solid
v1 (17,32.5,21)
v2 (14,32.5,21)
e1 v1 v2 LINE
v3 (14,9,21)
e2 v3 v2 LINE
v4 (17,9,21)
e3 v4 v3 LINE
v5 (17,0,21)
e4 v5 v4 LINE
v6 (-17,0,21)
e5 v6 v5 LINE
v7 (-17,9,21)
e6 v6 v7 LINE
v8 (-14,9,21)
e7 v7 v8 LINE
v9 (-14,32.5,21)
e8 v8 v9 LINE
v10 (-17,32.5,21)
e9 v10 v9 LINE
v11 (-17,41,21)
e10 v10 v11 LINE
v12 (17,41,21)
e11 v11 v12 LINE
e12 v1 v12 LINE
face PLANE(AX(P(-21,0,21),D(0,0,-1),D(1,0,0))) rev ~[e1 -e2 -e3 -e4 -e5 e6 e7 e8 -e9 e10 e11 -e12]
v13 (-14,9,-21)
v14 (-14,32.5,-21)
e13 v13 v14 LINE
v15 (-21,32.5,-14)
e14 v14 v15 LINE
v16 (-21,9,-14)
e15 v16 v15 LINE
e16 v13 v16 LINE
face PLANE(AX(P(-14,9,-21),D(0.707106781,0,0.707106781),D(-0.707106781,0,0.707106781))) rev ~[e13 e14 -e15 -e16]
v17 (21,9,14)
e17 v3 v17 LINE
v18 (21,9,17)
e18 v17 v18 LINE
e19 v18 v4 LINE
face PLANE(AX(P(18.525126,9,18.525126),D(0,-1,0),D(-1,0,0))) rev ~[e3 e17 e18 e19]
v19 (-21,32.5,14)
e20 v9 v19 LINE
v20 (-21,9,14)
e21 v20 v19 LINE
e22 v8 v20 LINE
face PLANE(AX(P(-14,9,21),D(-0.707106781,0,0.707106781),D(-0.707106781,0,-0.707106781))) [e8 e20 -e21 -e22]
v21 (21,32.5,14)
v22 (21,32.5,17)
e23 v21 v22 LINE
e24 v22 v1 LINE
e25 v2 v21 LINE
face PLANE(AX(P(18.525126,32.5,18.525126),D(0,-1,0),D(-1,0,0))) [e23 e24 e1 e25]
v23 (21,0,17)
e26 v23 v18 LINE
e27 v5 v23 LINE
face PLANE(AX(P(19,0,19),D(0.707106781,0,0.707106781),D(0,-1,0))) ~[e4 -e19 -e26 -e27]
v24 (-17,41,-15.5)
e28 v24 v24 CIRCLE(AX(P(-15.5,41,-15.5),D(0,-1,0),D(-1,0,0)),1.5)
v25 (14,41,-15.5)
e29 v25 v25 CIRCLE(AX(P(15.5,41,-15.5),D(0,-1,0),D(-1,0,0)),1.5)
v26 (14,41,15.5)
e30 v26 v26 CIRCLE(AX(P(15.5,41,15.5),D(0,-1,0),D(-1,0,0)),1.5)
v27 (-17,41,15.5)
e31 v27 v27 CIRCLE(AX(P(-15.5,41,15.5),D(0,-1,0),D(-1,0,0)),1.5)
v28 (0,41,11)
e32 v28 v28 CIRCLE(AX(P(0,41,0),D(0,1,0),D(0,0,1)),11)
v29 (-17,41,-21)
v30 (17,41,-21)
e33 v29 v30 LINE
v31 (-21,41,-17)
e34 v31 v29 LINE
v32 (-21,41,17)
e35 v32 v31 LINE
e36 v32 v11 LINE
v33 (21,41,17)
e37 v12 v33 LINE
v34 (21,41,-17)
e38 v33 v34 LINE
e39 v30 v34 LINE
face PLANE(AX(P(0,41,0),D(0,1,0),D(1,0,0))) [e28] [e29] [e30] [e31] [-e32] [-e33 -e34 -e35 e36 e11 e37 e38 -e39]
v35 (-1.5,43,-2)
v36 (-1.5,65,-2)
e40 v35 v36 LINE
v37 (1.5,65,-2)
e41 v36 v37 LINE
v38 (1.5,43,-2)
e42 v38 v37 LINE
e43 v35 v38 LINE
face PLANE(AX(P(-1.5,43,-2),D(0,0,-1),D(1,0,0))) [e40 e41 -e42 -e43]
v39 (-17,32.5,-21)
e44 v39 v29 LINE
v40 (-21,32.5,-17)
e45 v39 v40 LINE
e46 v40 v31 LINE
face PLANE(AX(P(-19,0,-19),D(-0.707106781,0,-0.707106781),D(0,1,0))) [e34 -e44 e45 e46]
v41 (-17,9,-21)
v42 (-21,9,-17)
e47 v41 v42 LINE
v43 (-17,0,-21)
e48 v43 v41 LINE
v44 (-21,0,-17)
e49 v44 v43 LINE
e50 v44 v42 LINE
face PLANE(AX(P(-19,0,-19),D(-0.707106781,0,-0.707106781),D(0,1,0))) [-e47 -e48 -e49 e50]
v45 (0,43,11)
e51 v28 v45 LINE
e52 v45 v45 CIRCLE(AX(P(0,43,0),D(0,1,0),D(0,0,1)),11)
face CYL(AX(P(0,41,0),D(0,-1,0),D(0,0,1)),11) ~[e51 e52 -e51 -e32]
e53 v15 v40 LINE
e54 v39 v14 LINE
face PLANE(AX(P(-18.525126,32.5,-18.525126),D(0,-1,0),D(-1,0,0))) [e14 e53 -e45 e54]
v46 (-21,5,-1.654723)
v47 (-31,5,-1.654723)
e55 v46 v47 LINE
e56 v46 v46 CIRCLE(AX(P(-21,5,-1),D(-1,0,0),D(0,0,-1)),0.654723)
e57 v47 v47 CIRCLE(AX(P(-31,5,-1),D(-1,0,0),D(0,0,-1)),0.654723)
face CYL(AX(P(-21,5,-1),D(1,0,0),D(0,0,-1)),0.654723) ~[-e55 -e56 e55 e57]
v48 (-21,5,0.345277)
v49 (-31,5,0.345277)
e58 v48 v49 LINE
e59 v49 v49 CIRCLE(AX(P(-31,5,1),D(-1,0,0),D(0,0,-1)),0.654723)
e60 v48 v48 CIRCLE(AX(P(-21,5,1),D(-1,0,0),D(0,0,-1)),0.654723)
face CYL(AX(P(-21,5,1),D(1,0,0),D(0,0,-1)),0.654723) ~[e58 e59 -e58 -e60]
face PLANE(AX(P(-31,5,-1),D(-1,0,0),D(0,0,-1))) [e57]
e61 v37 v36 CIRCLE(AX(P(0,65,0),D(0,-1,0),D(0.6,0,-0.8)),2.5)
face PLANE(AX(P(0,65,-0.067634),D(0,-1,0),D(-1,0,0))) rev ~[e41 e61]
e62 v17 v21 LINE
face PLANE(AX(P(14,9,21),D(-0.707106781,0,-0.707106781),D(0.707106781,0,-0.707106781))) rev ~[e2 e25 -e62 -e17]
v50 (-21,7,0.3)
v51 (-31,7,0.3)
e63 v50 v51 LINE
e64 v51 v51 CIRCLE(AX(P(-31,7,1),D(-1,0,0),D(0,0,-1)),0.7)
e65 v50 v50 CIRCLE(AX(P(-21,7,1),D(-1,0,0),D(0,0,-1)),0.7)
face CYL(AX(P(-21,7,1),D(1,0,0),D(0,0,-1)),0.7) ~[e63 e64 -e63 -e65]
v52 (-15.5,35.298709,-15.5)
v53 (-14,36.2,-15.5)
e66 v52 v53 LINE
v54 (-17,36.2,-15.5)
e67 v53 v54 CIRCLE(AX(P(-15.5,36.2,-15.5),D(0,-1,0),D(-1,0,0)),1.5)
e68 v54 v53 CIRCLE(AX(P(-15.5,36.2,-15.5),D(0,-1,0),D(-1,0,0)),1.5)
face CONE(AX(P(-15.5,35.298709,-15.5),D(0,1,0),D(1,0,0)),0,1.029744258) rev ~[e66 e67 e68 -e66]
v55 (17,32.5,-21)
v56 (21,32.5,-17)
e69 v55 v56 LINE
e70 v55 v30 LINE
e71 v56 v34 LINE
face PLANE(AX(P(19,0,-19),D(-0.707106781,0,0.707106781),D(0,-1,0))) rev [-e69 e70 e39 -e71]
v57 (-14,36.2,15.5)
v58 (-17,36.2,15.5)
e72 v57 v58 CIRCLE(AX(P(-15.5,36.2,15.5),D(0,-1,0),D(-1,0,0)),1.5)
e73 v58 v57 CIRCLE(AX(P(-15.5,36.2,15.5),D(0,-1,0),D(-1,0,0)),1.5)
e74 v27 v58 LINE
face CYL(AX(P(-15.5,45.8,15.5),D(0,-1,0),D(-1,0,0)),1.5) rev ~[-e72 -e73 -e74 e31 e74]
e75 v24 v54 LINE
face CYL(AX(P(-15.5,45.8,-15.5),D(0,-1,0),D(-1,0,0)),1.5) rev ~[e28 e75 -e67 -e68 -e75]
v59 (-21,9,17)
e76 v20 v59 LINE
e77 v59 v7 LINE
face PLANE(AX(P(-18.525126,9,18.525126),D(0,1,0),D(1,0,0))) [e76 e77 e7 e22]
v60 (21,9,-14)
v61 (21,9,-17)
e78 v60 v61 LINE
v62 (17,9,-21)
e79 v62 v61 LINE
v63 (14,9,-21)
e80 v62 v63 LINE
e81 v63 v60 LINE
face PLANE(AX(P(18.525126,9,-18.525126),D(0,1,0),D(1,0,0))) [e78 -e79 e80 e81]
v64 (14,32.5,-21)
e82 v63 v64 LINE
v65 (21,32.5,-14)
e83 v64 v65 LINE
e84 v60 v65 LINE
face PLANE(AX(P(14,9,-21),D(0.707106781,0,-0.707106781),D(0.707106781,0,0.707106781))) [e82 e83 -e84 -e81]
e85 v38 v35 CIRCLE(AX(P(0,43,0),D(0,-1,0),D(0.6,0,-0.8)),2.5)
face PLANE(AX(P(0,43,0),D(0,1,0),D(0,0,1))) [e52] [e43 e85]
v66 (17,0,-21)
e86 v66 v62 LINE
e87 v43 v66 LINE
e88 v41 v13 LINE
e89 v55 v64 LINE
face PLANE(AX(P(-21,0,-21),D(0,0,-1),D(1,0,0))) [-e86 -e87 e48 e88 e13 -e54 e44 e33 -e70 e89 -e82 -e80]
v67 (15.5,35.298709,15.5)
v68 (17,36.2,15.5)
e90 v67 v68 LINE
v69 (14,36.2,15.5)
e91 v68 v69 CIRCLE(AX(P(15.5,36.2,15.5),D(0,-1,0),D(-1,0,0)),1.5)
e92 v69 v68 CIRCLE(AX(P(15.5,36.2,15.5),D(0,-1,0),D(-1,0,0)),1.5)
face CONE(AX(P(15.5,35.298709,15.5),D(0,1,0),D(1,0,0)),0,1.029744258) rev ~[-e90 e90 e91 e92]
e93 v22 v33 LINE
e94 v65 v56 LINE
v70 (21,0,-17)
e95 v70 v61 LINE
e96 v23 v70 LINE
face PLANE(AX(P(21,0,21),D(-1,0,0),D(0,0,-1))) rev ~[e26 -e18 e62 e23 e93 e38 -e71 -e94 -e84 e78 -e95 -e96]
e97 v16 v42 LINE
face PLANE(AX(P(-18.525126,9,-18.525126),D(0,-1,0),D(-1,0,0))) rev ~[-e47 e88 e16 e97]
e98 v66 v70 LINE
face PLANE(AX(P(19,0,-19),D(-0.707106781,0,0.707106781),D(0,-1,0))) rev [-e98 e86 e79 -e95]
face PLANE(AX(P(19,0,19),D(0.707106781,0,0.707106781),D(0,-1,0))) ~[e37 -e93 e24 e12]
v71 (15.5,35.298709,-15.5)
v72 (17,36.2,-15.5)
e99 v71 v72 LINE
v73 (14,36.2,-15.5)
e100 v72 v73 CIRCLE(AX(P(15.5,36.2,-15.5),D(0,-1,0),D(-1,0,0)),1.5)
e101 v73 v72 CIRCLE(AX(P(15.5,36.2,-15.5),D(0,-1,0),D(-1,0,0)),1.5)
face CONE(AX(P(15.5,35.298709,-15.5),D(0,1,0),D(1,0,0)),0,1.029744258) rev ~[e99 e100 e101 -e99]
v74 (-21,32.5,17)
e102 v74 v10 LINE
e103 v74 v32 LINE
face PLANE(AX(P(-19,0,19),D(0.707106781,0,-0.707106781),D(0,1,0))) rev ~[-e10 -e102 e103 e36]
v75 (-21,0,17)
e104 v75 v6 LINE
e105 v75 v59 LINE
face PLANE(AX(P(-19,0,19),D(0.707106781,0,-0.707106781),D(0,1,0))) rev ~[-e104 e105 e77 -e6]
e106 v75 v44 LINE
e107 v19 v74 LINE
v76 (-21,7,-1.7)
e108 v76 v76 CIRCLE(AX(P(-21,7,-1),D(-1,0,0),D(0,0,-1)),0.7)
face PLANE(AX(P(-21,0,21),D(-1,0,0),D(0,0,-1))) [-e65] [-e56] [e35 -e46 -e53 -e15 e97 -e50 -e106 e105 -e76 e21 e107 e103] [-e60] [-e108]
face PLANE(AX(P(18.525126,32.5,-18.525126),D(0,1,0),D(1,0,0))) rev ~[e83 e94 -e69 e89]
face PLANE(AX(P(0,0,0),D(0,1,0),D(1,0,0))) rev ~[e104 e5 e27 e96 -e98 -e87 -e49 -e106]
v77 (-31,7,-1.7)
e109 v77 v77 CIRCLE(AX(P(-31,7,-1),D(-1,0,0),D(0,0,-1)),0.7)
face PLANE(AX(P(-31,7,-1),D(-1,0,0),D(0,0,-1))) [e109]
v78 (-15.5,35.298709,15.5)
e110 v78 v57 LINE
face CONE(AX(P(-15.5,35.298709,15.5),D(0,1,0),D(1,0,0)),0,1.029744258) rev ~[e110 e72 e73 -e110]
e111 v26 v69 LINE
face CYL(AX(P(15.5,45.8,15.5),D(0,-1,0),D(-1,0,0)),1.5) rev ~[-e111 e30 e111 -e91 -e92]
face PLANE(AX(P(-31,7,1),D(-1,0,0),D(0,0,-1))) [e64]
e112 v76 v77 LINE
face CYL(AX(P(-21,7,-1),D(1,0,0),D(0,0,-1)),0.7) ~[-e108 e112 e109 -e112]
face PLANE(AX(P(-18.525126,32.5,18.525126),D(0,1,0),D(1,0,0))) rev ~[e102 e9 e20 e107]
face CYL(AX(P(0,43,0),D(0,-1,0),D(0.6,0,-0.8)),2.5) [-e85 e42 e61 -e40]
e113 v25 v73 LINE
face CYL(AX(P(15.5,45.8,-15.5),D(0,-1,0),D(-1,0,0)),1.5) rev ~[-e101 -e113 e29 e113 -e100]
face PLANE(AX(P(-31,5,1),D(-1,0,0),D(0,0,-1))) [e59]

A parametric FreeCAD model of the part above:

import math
import FreeCAD as App
import Part
import Sketcher

V = App.Vector
Q = App.Units.Quantity


def edges_at(feature, points):
    """Names of the edges that pass closest to the given points."""
    edges = feature.Shape.Edges
    near = lambda p: min(range(len(edges)), key=lambda i: edges[i].distToShape(Part.Vertex(*p))[0])
    return sorted({f"Edge{near(p) + 1}" for p in points})

doc = App.newDocument("Part")
body = doc.addObject("PartDesign::Body", "Body")

# Sketch on XZ plane
sketch1 = body.newObject("Sketcher::SketchObject", "Sketch")
sketch1.AttachmentSupport = (doc.getObject("XZ_Plane"), [""])
sketch1.MapMode = "FlatFace"
sketch1.addGeometry(Part.LineSegment(V(-21, -21, 0), V(-21, 21, 0)), False)
sketch1.addGeometry(Part.LineSegment(V(-21, 21, 0), V(21, 21, 0)), False)
sketch1.addGeometry(Part.LineSegment(V(21, 21, 0), V(21, -21, 0)), False)
sketch1.addGeometry(Part.LineSegment(V(21, -21, 0), V(-21, -21, 0)), False)
sketch1.addConstraint(Sketcher.Constraint("Coincident", 0, 2, 1, 1))
sketch1.addConstraint(Sketcher.Constraint("Coincident", 1, 2, 2, 1))
sketch1.addConstraint(Sketcher.Constraint("Coincident", 2, 2, 3, 1))
sketch1.addConstraint(Sketcher.Constraint("Coincident", 3, 2, 0, 1))
sketch1.addConstraint(Sketcher.Constraint("Vertical", 0))
sketch1.addConstraint(Sketcher.Constraint("Horizontal", 1))
sketch1.addConstraint(Sketcher.Constraint("Vertical", 2))
sketch1.addConstraint(Sketcher.Constraint("Horizontal", 3))
sketch1.addConstraint(Sketcher.Constraint("Symmetric", 0, 2, 2, 2, -1, 1))
sketch1.addConstraint(Sketcher.Constraint("Equal", 3, 0))
sketch1.addConstraint(Sketcher.Constraint("DistanceX", 1, 1, 1, 2, Q("42 mm")))
pad1 = body.newObject("PartDesign::Pad", "Pad")
pad1.Profile = sketch1
pad1.Length = 41
pad1.Reversed = True

# Sketch on XZ plane
sketch2 = body.newObject("Sketcher::SketchObject", "Sketch001")
sketch2.AttachmentSupport = (doc.getObject("XZ_Plane"), [""])
sketch2.MapMode = "FlatFace"
sketch2.AttachmentOffset = App.Placement(V(0, 0, -41), App.Rotation())
sketch2.addGeometry(Part.Circle(V(0, 0, 0), V(0, 0, 1), 11), False)
sketch2.addConstraint(Sketcher.Constraint("Coincident", 0, 3, -1, 1))
sketch2.addConstraint(Sketcher.Constraint("Diameter", 0, Q("22 mm")))
pad2 = body.newObject("PartDesign::Pad", "Pad001")
pad2.Profile = sketch2
pad2.Length = 2
pad2.Reversed = True

# Sketch on XZ plane
sketch3 = body.newObject("Sketcher::SketchObject", "Sketch002")
sketch3.AttachmentSupport = (doc.getObject("XZ_Plane"), [""])
sketch3.MapMode = "FlatFace"
sketch3.AttachmentOffset = App.Placement(V(0, 0, -43), App.Rotation())
sketch3.addGeometry(Part.LineSegment(V(1.5, -2, 0), V(-1.5, -2, 0)), False)
sketch3.addGeometry(Part.ArcOfCircle(Part.Circle(V(0, 0, 0), V(0, 0, 1), 2.5), math.radians(-53), math.radians(233)), False)
sketch3.addConstraint(Sketcher.Constraint("Coincident", 0, 1, 1, 1))
sketch3.addConstraint(Sketcher.Constraint("Coincident", 1, 2, 0, 2))
sketch3.addConstraint(Sketcher.Constraint("Horizontal", 0))
sketch3.addConstraint(Sketcher.Constraint("Coincident", 1, 3, -1, 1))
sketch3.addConstraint(Sketcher.Constraint("Radius", 1, Q("2.5 mm")))
sketch3.addConstraint(Sketcher.Constraint("DistanceX", 0, 2, 0, 1, Q("3 mm")))
pad3 = body.newObject("PartDesign::Pad", "Pad002")
pad3.Profile = sketch3
pad3.Length = 22
pad3.Reversed = True

# Sketch on XZ plane
sketch4 = body.newObject("Sketcher::SketchObject", "Sketch003")
sketch4.AttachmentSupport = (doc.getObject("XZ_Plane"), [""])
sketch4.MapMode = "FlatFace"
sketch4.AttachmentOffset = App.Placement(V(0, 0, -41), App.Rotation())
sketch4.addGeometry(Part.Circle(V(-15.5, -15.5, 0), V(0, 0, 1), 1.5), False)
sketch4.addGeometry(Part.Circle(V(15.5, -15.5, 0), V(0, 0, 1), 1.5), False)
sketch4.addGeometry(Part.Circle(V(15.5, 15.5, 0), V(0, 0, 1), 1.5), False)
sketch4.addGeometry(Part.Circle(V(-15.5, 15.5, 0), V(0, 0, 1), 1.5), False)
sketch4.addConstraint(Sketcher.Constraint("Equal", 0, 1))
sketch4.addConstraint(Sketcher.Constraint("Equal", 1, 2))
sketch4.addConstraint(Sketcher.Constraint("Equal", 2, 3))
sketch4.addConstraint(Sketcher.Constraint("Symmetric", 0, 3, 2, 3, -1, 1))
sketch4.addConstraint(Sketcher.Constraint("Symmetric", 1, 3, 3, 3, -1, 1))
sketch4.addConstraint(Sketcher.Constraint("Symmetric", 0, 3, 1, 3, -2))
sketch4.addConstraint(Sketcher.Constraint("Diameter", 0, Q("3 mm")))
sketch4.addConstraint(Sketcher.Constraint("DistanceX", 0, 3, 1, 3, Q("31 mm")))
sketch4.addConstraint(Sketcher.Constraint("DistanceY", 1, 3, 2, 3, Q("31 mm")))
doc.recompute()
hole = body.newObject("PartDesign::Hole", "Hole")
hole.Profile = sketch4
hole.ThreadType = "None"
hole.Diameter = 3
hole.DepthType = "Dimension"
hole.Depth = 4.8
hole.DrillPoint = "Angled"
hole.DrillPointAngle = 118
hole.Reversed = True
doc.recompute()

chamfer = body.newObject("PartDesign::Chamfer", "Chamfer")
chamfer.Base = (hole, edges_at(hole, [
    (-21, 20.5, -21),
    (21, 20.5, -21),
    (21, 20.5, 21),
    (-21, 20.5, 21),
]))
chamfer.Size = 4

# Sketch on XZ plane
sketch5 = body.newObject("Sketcher::SketchObject", "Sketch004")
sketch5.AttachmentSupport = (doc.getObject("XZ_Plane"), [""])
sketch5.MapMode = "FlatFace"
sketch5.AttachmentOffset = App.Placement(V(0, 0, -9), App.Rotation())
sketch5.addGeometry(Part.LineSegment(V(-21, -14, 0), V(-14, -21, 0)), False)
sketch5.addGeometry(Part.LineSegment(V(-14, -21, 0), V(-21, -21, 0)), False)
sketch5.addGeometry(Part.LineSegment(V(-21, -21, 0), V(-21, -14, 0)), False)
sketch5.addGeometry(Part.LineSegment(V(21, -21, 0), V(14, -21, 0)), False)
sketch5.addGeometry(Part.LineSegment(V(14, -21, 0), V(21, -14, 0)), False)
sketch5.addGeometry(Part.LineSegment(V(21, -14, 0), V(21, -21, 0)), False)
sketch5.addGeometry(Part.LineSegment(V(21, 14, 0), V(14, 21, 0)), False)
sketch5.addGeometry(Part.LineSegment(V(14, 21, 0), V(21, 21, 0)), False)
sketch5.addGeometry(Part.LineSegment(V(21, 21, 0), V(21, 14, 0)), False)
sketch5.addGeometry(Part.LineSegment(V(-21, 21, 0), V(-14, 21, 0)), False)
sketch5.addGeometry(Part.LineSegment(V(-14, 21, 0), V(-21, 14, 0)), False)
sketch5.addGeometry(Part.LineSegment(V(-21, 14, 0), V(-21, 21, 0)), False)
sketch5.addConstraint(Sketcher.Constraint("Coincident", 0, 2, 1, 1))
sketch5.addConstraint(Sketcher.Constraint("Coincident", 1, 2, 2, 1))
sketch5.addConstraint(Sketcher.Constraint("Coincident", 2, 2, 0, 1))
sketch5.addConstraint(Sketcher.Constraint("Coincident", 3, 2, 4, 1))
sketch5.addConstraint(Sketcher.Constraint("Coincident", 4, 2, 5, 1))
sketch5.addConstraint(Sketcher.Constraint("Coincident", 5, 2, 3, 1))
sketch5.addConstraint(Sketcher.Constraint("Coincident", 6, 2, 7, 1))
sketch5.addConstraint(Sketcher.Constraint("Coincident", 7, 2, 8, 1))
sketch5.addConstraint(Sketcher.Constraint("Coincident", 8, 2, 6, 1))
sketch5.addConstraint(Sketcher.Constraint("Coincident", 9, 2, 10, 1))
sketch5.addConstraint(Sketcher.Constraint("Coincident", 10, 2, 11, 1))
sketch5.addConstraint(Sketcher.Constraint("Coincident", 11, 2, 9, 1))
sketch5.addConstraint(Sketcher.Constraint("Horizontal", 1))
sketch5.addConstraint(Sketcher.Constraint("Vertical", 2))
sketch5.addConstraint(Sketcher.Constraint("Horizontal", 3))
sketch5.addConstraint(Sketcher.Constraint("Vertical", 5))
sketch5.addConstraint(Sketcher.Constraint("Horizontal", 7))
sketch5.addConstraint(Sketcher.Constraint("Vertical", 8))
sketch5.addConstraint(Sketcher.Constraint("Horizontal", 9))
sketch5.addConstraint(Sketcher.Constraint("Vertical", 11))
sketch5.addConstraint(Sketcher.Constraint("Symmetric", 0, 2, 6, 2, -1, 1))
sketch5.addConstraint(Sketcher.Constraint("Symmetric", 2, 2, 8, 2, -1, 1))
sketch5.addConstraint(Sketcher.Constraint("Symmetric", 3, 2, 9, 2, -1, 1))
sketch5.addConstraint(Sketcher.Constraint("Symmetric", 4, 2, 10, 2, -1, 1))
sketch5.addConstraint(Sketcher.Constraint("Symmetric", 0, 2, 3, 2, -2))
sketch5.addConstraint(Sketcher.Constraint("Symmetric", 2, 2, 4, 2, -2))
sketch5.addConstraint(Sketcher.Constraint("Perpendicular", 0, 4))
sketch5.addConstraint(Sketcher.Constraint("DistanceX", 1, 2, 1, 1, Q("7 mm")))
sketch5.addConstraint(Sketcher.Constraint("DistanceX", 0, 2, -1, 1, Q("14 mm")))
sketch5.addConstraint(Sketcher.Constraint("DistanceY", 0, 2, -1, 1, Q("21 mm")))
pocket1 = body.newObject("PartDesign::Pocket", "Pocket")
pocket1.Profile = sketch5
pocket1.Length = 23.5

# Sketch on YZ plane
sketch6 = body.newObject("Sketcher::SketchObject", "Sketch005")
sketch6.AttachmentSupport = (doc.getObject("YZ_Plane"), [""])
sketch6.MapMode = "FlatFace"
sketch6.AttachmentOffset = App.Placement(V(0, 0, -21), App.Rotation())
sketch6.addGeometry(Part.Circle(V(7, -1, 0), V(0, 0, 1), 0.7), False)
sketch6.addGeometry(Part.Circle(V(5, -1, 0), V(0, 0, 1), 0.7), False)
sketch6.addGeometry(Part.Circle(V(5, 1, 0), V(0, 0, 1), 0.7), False)
sketch6.addGeometry(Part.Circle(V(7, 1, 0), V(0, 0, 1), 0.7), False)
sketch6.addConstraint(Sketcher.Constraint("Equal", 1, 2))
sketch6.addConstraint(Sketcher.Constraint("Equal", 0, 3))
sketch6.addConstraint(Sketcher.Constraint("Symmetric", 1, 3, 2, 3, -1))
sketch6.addConstraint(Sketcher.Constraint("Symmetric", 0, 3, 3, 3, -1))
sketch6.addConstraint(Sketcher.Constraint("Horizontal", 0, 3, 1, 3))
sketch6.addConstraint(Sketcher.Constraint("Diameter", 0, Q("1.4 mm")))
sketch6.addConstraint(Sketcher.Constraint("DistanceX", -1, 1, 0, 3, Q("7 mm")))
sketch6.addConstraint(Sketcher.Constraint("DistanceY", 0, 3, -1, 1, Q("1 mm")))
sketch6.addConstraint(Sketcher.Constraint("DistanceX", -1, 1, 1, 3, Q("5 mm")))
sketch6.addConstraint(Sketcher.Constraint("Diameter", 1, Q("1.309446 mm")))
pad4 = body.newObject("PartDesign::Pad", "Pad003")
pad4.Profile = sketch6
pad4.Length = 10
pad4.Reversed = True

doc.recompute()
